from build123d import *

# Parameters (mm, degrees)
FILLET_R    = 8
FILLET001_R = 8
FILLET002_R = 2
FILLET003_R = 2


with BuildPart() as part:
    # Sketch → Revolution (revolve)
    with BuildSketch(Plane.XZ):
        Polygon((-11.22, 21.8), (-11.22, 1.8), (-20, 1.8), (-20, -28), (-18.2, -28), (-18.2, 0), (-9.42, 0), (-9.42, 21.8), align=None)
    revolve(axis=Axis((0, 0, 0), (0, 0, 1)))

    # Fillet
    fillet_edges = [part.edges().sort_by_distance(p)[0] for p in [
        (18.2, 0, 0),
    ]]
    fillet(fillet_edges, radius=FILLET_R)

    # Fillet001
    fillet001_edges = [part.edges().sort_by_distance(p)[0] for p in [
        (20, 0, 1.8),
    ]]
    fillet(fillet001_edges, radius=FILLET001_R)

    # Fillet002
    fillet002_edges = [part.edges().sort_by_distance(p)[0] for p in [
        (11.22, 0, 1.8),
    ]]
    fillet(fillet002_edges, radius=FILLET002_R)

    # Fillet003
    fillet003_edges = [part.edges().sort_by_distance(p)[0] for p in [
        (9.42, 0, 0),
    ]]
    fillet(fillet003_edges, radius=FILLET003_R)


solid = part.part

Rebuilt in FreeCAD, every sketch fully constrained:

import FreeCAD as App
import Part
import Sketcher

V = App.Vector
Q = App.Units.Quantity


def edges_at(feature, points):
    """Names of the edges that pass closest to the given points."""
    edges = feature.Shape.Edges
    near = lambda p: min(range(len(edges)), key=lambda i: edges[i].distToShape(Part.Vertex(*p))[0])
    return sorted({f"Edge{near(p) + 1}" for p in points})


def add_polygon(sketch, points):
    """Adds a closed chain of lines whose ends are joined by coincident constraints."""
    first, n = sketch.GeometryCount, len(points)
    for a, b in zip(points, points[1:] + points[:1]):
        sketch.addGeometry(Part.LineSegment(App.Vector(*a, 0), App.Vector(*b, 0)), False)
    for i in range(n):
        sketch.addConstraint(Sketcher.Constraint("Coincident", first + i, 2, first + (i + 1) % n, 1))

doc = App.newDocument("Part")
body = doc.addObject("PartDesign::Body", "Body")

sketch1 = doc.addObject("Sketcher::SketchObject", "Sketch")
body.addObject(sketch1)
sketch1.AttachmentSupport = (doc.XZ_Plane, [""])
sketch1.MapMode = "FlatFace"
add_polygon(sketch1, [(-11.2, 21.8), (-11.2, 1.8), (-20, 1.8), (-20, -28), (-18.2, -28), (-18.2, 0), (-9.4, 0), (-9.4, 21.8)])
sketch1.addConstraint(Sketcher.Constraint("Vertical", 0))
sketch1.addConstraint(Sketcher.Constraint("Horizontal", 1))
sketch1.addConstraint(Sketcher.Constraint("Vertical", 2))
sketch1.addConstraint(Sketcher.Constraint("Horizontal", 3))
sketch1.addConstraint(Sketcher.Constraint("Vertical", 4))
sketch1.addConstraint(Sketcher.Constraint("Horizontal", 5))
sketch1.addConstraint(Sketcher.Constraint("Vertical", 6))
sketch1.addConstraint(Sketcher.Constraint("Horizontal", 7))
sketch1.addConstraint(Sketcher.Constraint("PointOnObject", 4, 2, -1))
sketch1.addConstraint(Sketcher.Constraint("Equal", 1, 5))
sketch1.addConstraint(Sketcher.Constraint("DistanceY", 0, 2, 0, 1, Q("20 mm")))
sketch1.addConstraint(Sketcher.Constraint("DistanceY", 4, 1, 4, 2, Q("28 mm")))
sketch1.addConstraint(Sketcher.Constraint("DistanceX", 3, 1, 3, 2, Q("1.8 mm")))
sketch1.addConstraint(Sketcher.Constraint("DistanceY", 2, 2, 2, 1, Q("29.8 mm")))
sketch1.addConstraint(Sketcher.Constraint("DistanceX", 1, 2, -1, 1, Q("20 mm")))
sketch1.addConstraint(Sketcher.Constraint("DistanceX", 1, 2, 1, 1, Q("8.78 mm")))
revolution = doc.addObject("PartDesign::Revolution", "Revolution")
body.addObject(revolution)
revolution.Profile = sketch1
revolution.ReferenceAxis = (sketch1, ["V_Axis"])
revolution.Angle = 360
doc.recompute()

fillet = doc.addObject("PartDesign::Fillet", "Fillet")
body.addObject(fillet)
fillet.Base = (revolution, edges_at(revolution, [(18.2, 0, 0)]))
fillet.Radius = 8
doc.recompute()

fillet2 = doc.addObject("PartDesign::Fillet", "Fillet001")
body.addObject(fillet2)
fillet2.Base = (fillet, edges_at(fillet, [(20, 0, 1.8)]))
fillet2.Radius = 8
doc.recompute()

fillet3 = doc.addObject("PartDesign::Fillet", "Fillet002")
body.addObject(fillet3)
fillet3.Base = (fillet2, edges_at(fillet2, [(11.22, 0, 1.8)]))
fillet3.Radius = 2
doc.recompute()

fillet4 = doc.addObject("PartDesign::Fillet", "Fillet003")
body.addObject(fillet4)
fillet4.Base = (fillet3, edges_at(fillet3, [(9.42, 0, 0)]))
fillet4.Radius = 2

doc.recompute()
